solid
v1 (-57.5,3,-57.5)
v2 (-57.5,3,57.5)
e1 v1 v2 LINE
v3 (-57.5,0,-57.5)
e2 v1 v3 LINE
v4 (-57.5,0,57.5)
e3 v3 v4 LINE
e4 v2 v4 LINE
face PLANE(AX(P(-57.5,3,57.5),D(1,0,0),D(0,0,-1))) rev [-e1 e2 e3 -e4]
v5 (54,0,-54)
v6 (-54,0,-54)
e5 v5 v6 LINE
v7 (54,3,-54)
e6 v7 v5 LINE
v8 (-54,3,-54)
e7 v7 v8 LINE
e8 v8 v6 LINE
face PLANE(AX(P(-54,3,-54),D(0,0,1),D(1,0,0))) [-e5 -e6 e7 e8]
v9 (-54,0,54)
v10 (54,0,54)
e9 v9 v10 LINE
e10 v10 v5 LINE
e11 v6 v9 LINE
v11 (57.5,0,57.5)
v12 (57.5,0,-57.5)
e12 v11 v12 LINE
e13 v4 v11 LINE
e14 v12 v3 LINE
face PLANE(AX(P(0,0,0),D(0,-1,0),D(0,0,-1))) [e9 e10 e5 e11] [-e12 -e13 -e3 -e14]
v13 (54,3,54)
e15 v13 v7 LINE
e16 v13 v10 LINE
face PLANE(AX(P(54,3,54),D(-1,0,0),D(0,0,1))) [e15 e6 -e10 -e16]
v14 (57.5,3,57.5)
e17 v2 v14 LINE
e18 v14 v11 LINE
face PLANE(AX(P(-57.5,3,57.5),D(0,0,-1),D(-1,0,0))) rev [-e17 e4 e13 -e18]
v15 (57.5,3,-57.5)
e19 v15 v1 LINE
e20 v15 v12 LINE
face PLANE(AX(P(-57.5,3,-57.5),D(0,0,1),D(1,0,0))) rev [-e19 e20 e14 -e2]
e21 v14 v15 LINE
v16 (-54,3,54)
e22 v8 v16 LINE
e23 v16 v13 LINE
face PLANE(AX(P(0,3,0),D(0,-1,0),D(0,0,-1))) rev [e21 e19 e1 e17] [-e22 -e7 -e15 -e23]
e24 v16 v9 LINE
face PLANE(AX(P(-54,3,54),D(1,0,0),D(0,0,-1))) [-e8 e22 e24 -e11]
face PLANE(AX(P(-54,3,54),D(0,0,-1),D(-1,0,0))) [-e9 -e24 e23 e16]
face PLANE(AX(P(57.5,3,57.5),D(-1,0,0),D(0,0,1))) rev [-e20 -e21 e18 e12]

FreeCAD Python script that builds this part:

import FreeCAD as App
import Part
import Sketcher

V = App.Vector
Q = App.Units.Quantity

doc = App.newDocument("Part")
params = doc.addObject("Spreadsheet::Sheet", "Params")
for row, (alias, value) in enumerate([
    ("sketch1_width", "115 mm"),
    ("sketch1_width2", "108 mm"),
    ("pad1_length", "3 mm"),
], start=1):
    params.set(f"A{row}", alias)
    params.set(f"B{row}", "=" + value)
    params.setAlias(f"B{row}", alias)

body = doc.addObject("PartDesign::Body", "Body")

sketch1 = doc.addObject("Sketcher::SketchObject", "Sketch")
body.addObject(sketch1)
sketch1.AttachmentSupport = (doc.XZ_Plane, [""])
sketch1.MapMode = "FlatFace"
sketch1.addGeometry([
    Part.LineSegment(V(-58, -58, 0), V(-58, 58, 0)),
    Part.LineSegment(V(-58, 58, 0), V(58, 58, 0)),
    Part.LineSegment(V(58, 58, 0), V(58, -58, 0)),
    Part.LineSegment(V(58, -58, 0), V(-58, -58, 0)),
    Part.LineSegment(V(54, 54, 0), V(-54, 54, 0)),
    Part.LineSegment(V(-54, 54, 0), V(-54, -54, 0)),
    Part.LineSegment(V(-54, -54, 0), V(54, -54, 0)),
    Part.LineSegment(V(54, -54, 0), V(54, 54, 0)),
], False)
sketch1.addConstraint([
    Sketcher.Constraint("Coincident", 0, 2, 1, 1),
    Sketcher.Constraint("Coincident", 1, 2, 2, 1),
    Sketcher.Constraint("Coincident", 2, 2, 3, 1),
    Sketcher.Constraint("Coincident", 3, 2, 0, 1),
    Sketcher.Constraint("Coincident", 4, 2, 5, 1),
    Sketcher.Constraint("Coincident", 5, 2, 6, 1),
    Sketcher.Constraint("Coincident", 6, 2, 7, 1),
    Sketcher.Constraint("Coincident", 7, 2, 4, 1),
    Sketcher.Constraint("Vertical", 0),
    Sketcher.Constraint("Horizontal", 1),
    Sketcher.Constraint("Vertical", 2),
    Sketcher.Constraint("Horizontal", 3),
    Sketcher.Constraint("Horizontal", 4),
    Sketcher.Constraint("Vertical", 5),
    Sketcher.Constraint("Horizontal", 6),
    Sketcher.Constraint("Vertical", 7),
    Sketcher.Constraint("Symmetric", 0, 2, 2, 2, -1, 1),
    Sketcher.Constraint("Symmetric", 4, 2, 6, 2, -1, 1),
    Sketcher.Constraint("Equal", 3, 0),
    Sketcher.Constraint("Equal", 6, 5),
    Sketcher.Constraint("DistanceX", 1, 1, 1, 2, Q("115 mm")),
    Sketcher.Constraint("DistanceX", 4, 2, 4, 1, Q("108 mm")),
])
sketch1.setExpression("Constraints[20]", "Params.sketch1_width")
sketch1.setExpression("Constraints[21]", "Params.sketch1_width2")
pad1 = doc.addObject("PartDesign::Pad", "Pad")
body.addObject(pad1)
pad1.Profile = sketch1
pad1.setExpression("Length", "Params.pad1_length")
pad1.Reversed = True

doc.recompute()
